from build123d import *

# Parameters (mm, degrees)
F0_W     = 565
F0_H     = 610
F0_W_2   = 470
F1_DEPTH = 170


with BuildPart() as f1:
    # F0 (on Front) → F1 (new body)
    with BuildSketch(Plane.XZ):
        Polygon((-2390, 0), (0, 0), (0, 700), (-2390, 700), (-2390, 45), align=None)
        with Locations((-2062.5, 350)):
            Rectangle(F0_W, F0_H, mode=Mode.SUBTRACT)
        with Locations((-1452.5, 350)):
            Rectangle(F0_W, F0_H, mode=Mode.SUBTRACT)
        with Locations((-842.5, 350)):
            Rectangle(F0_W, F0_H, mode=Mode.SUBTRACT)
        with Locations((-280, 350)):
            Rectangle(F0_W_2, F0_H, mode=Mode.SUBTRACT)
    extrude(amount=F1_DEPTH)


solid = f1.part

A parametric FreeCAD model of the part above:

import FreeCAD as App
import Part
import Sketcher

V = App.Vector
Q = App.Units.Quantity


def add_polygon(sketch, points):
    """Adds a closed chain of lines whose ends are joined by coincident constraints."""
    first, n = sketch.GeometryCount, len(points)
    for a, b in zip(points, points[1:] + points[:1]):
        sketch.addGeometry(Part.LineSegment(App.Vector(*a, 0), App.Vector(*b, 0)), False)
    for i in range(n):
        sketch.addConstraint(Sketcher.Constraint("Coincident", first + i, 2, first + (i + 1) % n, 1))

doc = App.newDocument("Part")
body = doc.addObject("PartDesign::Body", "Body")

sketch1 = body.newObject("Sketcher::SketchObject", "Sketch")
sketch1.AttachmentSupport = (doc.getObject("XZ_Plane"), [""])
sketch1.MapMode = "FlatFace"
add_polygon(sketch1, [(-2390, 0), (0, 0), (0, 700), (-2390, 700)])
add_polygon(sketch1, [(-1780, 45), (-2345, 45), (-2345, 655), (-1780, 655)])
add_polygon(sketch1, [(-1170, 45), (-1735, 45), (-1735, 655), (-1170, 655)])
add_polygon(sketch1, [(-560, 45), (-1125, 45), (-1125, 655), (-560, 655)])
add_polygon(sketch1, [(-45, 45), (-515, 45), (-515, 655), (-45, 655)])
sketch1.addConstraint([
    Sketcher.Constraint("Horizontal", 0),
    Sketcher.Constraint("Vertical", 1),
    Sketcher.Constraint("Horizontal", 2),
    Sketcher.Constraint("Vertical", 3),
    Sketcher.Constraint("Horizontal", 4),
    Sketcher.Constraint("Vertical", 5),
    Sketcher.Constraint("Horizontal", 6),
    Sketcher.Constraint("Vertical", 7),
    Sketcher.Constraint("Horizontal", 8),
    Sketcher.Constraint("Vertical", 9),
    Sketcher.Constraint("Horizontal", 10),
    Sketcher.Constraint("Vertical", 11),
    Sketcher.Constraint("Horizontal", 12),
    Sketcher.Constraint("Vertical", 13),
    Sketcher.Constraint("Horizontal", 14),
    Sketcher.Constraint("Vertical", 15),
    Sketcher.Constraint("Horizontal", 16),
    Sketcher.Constraint("Vertical", 17),
    Sketcher.Constraint("Horizontal", 18),
    Sketcher.Constraint("Vertical", 19),
    Sketcher.Constraint("Coincident", 0, 2, -1, 1),
    Sketcher.Constraint("Horizontal", 7, 2, 8, 2),
    Sketcher.Constraint("Horizontal", 6, 2, 9, 2),
    Sketcher.Constraint("Horizontal", 11, 2, 12, 2),
    Sketcher.Constraint("Horizontal", 10, 2, 13, 2),
    Sketcher.Constraint("Horizontal", 15, 2, 16, 2),
    Sketcher.Constraint("Horizontal", 14, 2, 17, 2),
    Sketcher.Constraint("Equal", 6, 8),
    Sketcher.Constraint("Equal", 10, 12),
    Sketcher.Constraint("DistanceX", 0, 1, 0, 2, Q("2390 mm")),
    Sketcher.Constraint("DistanceX", 4, 2, 4, 1, Q("565 mm")),
    Sketcher.Constraint("DistanceX", 16, 2, 16, 1, Q("470 mm")),
    Sketcher.Constraint("DistanceY", 1, 1, 1, 2, Q("700 mm")),
    Sketcher.Constraint("DistanceY", 5, 1, 5, 2, Q("610 mm")),
    Sketcher.Constraint("DistanceX", 4, 2, -1, 1, Q("2345 mm")),
    Sketcher.Constraint("DistanceY", -1, 1, 4, 2, Q("45 mm")),
    Sketcher.Constraint("DistanceX", 8, 2, -1, 1, Q("1735 mm")),
    Sketcher.Constraint("DistanceX", 12, 2, -1, 1, Q("1125 mm")),
    Sketcher.Constraint("DistanceX", 16, 2, -1, 1, Q("515 mm")),
])
pad1 = body.newObject("PartDesign::Pad", "Pad")
pad1.Profile = sketch1
pad1.Length = 170

doc.recompute()
